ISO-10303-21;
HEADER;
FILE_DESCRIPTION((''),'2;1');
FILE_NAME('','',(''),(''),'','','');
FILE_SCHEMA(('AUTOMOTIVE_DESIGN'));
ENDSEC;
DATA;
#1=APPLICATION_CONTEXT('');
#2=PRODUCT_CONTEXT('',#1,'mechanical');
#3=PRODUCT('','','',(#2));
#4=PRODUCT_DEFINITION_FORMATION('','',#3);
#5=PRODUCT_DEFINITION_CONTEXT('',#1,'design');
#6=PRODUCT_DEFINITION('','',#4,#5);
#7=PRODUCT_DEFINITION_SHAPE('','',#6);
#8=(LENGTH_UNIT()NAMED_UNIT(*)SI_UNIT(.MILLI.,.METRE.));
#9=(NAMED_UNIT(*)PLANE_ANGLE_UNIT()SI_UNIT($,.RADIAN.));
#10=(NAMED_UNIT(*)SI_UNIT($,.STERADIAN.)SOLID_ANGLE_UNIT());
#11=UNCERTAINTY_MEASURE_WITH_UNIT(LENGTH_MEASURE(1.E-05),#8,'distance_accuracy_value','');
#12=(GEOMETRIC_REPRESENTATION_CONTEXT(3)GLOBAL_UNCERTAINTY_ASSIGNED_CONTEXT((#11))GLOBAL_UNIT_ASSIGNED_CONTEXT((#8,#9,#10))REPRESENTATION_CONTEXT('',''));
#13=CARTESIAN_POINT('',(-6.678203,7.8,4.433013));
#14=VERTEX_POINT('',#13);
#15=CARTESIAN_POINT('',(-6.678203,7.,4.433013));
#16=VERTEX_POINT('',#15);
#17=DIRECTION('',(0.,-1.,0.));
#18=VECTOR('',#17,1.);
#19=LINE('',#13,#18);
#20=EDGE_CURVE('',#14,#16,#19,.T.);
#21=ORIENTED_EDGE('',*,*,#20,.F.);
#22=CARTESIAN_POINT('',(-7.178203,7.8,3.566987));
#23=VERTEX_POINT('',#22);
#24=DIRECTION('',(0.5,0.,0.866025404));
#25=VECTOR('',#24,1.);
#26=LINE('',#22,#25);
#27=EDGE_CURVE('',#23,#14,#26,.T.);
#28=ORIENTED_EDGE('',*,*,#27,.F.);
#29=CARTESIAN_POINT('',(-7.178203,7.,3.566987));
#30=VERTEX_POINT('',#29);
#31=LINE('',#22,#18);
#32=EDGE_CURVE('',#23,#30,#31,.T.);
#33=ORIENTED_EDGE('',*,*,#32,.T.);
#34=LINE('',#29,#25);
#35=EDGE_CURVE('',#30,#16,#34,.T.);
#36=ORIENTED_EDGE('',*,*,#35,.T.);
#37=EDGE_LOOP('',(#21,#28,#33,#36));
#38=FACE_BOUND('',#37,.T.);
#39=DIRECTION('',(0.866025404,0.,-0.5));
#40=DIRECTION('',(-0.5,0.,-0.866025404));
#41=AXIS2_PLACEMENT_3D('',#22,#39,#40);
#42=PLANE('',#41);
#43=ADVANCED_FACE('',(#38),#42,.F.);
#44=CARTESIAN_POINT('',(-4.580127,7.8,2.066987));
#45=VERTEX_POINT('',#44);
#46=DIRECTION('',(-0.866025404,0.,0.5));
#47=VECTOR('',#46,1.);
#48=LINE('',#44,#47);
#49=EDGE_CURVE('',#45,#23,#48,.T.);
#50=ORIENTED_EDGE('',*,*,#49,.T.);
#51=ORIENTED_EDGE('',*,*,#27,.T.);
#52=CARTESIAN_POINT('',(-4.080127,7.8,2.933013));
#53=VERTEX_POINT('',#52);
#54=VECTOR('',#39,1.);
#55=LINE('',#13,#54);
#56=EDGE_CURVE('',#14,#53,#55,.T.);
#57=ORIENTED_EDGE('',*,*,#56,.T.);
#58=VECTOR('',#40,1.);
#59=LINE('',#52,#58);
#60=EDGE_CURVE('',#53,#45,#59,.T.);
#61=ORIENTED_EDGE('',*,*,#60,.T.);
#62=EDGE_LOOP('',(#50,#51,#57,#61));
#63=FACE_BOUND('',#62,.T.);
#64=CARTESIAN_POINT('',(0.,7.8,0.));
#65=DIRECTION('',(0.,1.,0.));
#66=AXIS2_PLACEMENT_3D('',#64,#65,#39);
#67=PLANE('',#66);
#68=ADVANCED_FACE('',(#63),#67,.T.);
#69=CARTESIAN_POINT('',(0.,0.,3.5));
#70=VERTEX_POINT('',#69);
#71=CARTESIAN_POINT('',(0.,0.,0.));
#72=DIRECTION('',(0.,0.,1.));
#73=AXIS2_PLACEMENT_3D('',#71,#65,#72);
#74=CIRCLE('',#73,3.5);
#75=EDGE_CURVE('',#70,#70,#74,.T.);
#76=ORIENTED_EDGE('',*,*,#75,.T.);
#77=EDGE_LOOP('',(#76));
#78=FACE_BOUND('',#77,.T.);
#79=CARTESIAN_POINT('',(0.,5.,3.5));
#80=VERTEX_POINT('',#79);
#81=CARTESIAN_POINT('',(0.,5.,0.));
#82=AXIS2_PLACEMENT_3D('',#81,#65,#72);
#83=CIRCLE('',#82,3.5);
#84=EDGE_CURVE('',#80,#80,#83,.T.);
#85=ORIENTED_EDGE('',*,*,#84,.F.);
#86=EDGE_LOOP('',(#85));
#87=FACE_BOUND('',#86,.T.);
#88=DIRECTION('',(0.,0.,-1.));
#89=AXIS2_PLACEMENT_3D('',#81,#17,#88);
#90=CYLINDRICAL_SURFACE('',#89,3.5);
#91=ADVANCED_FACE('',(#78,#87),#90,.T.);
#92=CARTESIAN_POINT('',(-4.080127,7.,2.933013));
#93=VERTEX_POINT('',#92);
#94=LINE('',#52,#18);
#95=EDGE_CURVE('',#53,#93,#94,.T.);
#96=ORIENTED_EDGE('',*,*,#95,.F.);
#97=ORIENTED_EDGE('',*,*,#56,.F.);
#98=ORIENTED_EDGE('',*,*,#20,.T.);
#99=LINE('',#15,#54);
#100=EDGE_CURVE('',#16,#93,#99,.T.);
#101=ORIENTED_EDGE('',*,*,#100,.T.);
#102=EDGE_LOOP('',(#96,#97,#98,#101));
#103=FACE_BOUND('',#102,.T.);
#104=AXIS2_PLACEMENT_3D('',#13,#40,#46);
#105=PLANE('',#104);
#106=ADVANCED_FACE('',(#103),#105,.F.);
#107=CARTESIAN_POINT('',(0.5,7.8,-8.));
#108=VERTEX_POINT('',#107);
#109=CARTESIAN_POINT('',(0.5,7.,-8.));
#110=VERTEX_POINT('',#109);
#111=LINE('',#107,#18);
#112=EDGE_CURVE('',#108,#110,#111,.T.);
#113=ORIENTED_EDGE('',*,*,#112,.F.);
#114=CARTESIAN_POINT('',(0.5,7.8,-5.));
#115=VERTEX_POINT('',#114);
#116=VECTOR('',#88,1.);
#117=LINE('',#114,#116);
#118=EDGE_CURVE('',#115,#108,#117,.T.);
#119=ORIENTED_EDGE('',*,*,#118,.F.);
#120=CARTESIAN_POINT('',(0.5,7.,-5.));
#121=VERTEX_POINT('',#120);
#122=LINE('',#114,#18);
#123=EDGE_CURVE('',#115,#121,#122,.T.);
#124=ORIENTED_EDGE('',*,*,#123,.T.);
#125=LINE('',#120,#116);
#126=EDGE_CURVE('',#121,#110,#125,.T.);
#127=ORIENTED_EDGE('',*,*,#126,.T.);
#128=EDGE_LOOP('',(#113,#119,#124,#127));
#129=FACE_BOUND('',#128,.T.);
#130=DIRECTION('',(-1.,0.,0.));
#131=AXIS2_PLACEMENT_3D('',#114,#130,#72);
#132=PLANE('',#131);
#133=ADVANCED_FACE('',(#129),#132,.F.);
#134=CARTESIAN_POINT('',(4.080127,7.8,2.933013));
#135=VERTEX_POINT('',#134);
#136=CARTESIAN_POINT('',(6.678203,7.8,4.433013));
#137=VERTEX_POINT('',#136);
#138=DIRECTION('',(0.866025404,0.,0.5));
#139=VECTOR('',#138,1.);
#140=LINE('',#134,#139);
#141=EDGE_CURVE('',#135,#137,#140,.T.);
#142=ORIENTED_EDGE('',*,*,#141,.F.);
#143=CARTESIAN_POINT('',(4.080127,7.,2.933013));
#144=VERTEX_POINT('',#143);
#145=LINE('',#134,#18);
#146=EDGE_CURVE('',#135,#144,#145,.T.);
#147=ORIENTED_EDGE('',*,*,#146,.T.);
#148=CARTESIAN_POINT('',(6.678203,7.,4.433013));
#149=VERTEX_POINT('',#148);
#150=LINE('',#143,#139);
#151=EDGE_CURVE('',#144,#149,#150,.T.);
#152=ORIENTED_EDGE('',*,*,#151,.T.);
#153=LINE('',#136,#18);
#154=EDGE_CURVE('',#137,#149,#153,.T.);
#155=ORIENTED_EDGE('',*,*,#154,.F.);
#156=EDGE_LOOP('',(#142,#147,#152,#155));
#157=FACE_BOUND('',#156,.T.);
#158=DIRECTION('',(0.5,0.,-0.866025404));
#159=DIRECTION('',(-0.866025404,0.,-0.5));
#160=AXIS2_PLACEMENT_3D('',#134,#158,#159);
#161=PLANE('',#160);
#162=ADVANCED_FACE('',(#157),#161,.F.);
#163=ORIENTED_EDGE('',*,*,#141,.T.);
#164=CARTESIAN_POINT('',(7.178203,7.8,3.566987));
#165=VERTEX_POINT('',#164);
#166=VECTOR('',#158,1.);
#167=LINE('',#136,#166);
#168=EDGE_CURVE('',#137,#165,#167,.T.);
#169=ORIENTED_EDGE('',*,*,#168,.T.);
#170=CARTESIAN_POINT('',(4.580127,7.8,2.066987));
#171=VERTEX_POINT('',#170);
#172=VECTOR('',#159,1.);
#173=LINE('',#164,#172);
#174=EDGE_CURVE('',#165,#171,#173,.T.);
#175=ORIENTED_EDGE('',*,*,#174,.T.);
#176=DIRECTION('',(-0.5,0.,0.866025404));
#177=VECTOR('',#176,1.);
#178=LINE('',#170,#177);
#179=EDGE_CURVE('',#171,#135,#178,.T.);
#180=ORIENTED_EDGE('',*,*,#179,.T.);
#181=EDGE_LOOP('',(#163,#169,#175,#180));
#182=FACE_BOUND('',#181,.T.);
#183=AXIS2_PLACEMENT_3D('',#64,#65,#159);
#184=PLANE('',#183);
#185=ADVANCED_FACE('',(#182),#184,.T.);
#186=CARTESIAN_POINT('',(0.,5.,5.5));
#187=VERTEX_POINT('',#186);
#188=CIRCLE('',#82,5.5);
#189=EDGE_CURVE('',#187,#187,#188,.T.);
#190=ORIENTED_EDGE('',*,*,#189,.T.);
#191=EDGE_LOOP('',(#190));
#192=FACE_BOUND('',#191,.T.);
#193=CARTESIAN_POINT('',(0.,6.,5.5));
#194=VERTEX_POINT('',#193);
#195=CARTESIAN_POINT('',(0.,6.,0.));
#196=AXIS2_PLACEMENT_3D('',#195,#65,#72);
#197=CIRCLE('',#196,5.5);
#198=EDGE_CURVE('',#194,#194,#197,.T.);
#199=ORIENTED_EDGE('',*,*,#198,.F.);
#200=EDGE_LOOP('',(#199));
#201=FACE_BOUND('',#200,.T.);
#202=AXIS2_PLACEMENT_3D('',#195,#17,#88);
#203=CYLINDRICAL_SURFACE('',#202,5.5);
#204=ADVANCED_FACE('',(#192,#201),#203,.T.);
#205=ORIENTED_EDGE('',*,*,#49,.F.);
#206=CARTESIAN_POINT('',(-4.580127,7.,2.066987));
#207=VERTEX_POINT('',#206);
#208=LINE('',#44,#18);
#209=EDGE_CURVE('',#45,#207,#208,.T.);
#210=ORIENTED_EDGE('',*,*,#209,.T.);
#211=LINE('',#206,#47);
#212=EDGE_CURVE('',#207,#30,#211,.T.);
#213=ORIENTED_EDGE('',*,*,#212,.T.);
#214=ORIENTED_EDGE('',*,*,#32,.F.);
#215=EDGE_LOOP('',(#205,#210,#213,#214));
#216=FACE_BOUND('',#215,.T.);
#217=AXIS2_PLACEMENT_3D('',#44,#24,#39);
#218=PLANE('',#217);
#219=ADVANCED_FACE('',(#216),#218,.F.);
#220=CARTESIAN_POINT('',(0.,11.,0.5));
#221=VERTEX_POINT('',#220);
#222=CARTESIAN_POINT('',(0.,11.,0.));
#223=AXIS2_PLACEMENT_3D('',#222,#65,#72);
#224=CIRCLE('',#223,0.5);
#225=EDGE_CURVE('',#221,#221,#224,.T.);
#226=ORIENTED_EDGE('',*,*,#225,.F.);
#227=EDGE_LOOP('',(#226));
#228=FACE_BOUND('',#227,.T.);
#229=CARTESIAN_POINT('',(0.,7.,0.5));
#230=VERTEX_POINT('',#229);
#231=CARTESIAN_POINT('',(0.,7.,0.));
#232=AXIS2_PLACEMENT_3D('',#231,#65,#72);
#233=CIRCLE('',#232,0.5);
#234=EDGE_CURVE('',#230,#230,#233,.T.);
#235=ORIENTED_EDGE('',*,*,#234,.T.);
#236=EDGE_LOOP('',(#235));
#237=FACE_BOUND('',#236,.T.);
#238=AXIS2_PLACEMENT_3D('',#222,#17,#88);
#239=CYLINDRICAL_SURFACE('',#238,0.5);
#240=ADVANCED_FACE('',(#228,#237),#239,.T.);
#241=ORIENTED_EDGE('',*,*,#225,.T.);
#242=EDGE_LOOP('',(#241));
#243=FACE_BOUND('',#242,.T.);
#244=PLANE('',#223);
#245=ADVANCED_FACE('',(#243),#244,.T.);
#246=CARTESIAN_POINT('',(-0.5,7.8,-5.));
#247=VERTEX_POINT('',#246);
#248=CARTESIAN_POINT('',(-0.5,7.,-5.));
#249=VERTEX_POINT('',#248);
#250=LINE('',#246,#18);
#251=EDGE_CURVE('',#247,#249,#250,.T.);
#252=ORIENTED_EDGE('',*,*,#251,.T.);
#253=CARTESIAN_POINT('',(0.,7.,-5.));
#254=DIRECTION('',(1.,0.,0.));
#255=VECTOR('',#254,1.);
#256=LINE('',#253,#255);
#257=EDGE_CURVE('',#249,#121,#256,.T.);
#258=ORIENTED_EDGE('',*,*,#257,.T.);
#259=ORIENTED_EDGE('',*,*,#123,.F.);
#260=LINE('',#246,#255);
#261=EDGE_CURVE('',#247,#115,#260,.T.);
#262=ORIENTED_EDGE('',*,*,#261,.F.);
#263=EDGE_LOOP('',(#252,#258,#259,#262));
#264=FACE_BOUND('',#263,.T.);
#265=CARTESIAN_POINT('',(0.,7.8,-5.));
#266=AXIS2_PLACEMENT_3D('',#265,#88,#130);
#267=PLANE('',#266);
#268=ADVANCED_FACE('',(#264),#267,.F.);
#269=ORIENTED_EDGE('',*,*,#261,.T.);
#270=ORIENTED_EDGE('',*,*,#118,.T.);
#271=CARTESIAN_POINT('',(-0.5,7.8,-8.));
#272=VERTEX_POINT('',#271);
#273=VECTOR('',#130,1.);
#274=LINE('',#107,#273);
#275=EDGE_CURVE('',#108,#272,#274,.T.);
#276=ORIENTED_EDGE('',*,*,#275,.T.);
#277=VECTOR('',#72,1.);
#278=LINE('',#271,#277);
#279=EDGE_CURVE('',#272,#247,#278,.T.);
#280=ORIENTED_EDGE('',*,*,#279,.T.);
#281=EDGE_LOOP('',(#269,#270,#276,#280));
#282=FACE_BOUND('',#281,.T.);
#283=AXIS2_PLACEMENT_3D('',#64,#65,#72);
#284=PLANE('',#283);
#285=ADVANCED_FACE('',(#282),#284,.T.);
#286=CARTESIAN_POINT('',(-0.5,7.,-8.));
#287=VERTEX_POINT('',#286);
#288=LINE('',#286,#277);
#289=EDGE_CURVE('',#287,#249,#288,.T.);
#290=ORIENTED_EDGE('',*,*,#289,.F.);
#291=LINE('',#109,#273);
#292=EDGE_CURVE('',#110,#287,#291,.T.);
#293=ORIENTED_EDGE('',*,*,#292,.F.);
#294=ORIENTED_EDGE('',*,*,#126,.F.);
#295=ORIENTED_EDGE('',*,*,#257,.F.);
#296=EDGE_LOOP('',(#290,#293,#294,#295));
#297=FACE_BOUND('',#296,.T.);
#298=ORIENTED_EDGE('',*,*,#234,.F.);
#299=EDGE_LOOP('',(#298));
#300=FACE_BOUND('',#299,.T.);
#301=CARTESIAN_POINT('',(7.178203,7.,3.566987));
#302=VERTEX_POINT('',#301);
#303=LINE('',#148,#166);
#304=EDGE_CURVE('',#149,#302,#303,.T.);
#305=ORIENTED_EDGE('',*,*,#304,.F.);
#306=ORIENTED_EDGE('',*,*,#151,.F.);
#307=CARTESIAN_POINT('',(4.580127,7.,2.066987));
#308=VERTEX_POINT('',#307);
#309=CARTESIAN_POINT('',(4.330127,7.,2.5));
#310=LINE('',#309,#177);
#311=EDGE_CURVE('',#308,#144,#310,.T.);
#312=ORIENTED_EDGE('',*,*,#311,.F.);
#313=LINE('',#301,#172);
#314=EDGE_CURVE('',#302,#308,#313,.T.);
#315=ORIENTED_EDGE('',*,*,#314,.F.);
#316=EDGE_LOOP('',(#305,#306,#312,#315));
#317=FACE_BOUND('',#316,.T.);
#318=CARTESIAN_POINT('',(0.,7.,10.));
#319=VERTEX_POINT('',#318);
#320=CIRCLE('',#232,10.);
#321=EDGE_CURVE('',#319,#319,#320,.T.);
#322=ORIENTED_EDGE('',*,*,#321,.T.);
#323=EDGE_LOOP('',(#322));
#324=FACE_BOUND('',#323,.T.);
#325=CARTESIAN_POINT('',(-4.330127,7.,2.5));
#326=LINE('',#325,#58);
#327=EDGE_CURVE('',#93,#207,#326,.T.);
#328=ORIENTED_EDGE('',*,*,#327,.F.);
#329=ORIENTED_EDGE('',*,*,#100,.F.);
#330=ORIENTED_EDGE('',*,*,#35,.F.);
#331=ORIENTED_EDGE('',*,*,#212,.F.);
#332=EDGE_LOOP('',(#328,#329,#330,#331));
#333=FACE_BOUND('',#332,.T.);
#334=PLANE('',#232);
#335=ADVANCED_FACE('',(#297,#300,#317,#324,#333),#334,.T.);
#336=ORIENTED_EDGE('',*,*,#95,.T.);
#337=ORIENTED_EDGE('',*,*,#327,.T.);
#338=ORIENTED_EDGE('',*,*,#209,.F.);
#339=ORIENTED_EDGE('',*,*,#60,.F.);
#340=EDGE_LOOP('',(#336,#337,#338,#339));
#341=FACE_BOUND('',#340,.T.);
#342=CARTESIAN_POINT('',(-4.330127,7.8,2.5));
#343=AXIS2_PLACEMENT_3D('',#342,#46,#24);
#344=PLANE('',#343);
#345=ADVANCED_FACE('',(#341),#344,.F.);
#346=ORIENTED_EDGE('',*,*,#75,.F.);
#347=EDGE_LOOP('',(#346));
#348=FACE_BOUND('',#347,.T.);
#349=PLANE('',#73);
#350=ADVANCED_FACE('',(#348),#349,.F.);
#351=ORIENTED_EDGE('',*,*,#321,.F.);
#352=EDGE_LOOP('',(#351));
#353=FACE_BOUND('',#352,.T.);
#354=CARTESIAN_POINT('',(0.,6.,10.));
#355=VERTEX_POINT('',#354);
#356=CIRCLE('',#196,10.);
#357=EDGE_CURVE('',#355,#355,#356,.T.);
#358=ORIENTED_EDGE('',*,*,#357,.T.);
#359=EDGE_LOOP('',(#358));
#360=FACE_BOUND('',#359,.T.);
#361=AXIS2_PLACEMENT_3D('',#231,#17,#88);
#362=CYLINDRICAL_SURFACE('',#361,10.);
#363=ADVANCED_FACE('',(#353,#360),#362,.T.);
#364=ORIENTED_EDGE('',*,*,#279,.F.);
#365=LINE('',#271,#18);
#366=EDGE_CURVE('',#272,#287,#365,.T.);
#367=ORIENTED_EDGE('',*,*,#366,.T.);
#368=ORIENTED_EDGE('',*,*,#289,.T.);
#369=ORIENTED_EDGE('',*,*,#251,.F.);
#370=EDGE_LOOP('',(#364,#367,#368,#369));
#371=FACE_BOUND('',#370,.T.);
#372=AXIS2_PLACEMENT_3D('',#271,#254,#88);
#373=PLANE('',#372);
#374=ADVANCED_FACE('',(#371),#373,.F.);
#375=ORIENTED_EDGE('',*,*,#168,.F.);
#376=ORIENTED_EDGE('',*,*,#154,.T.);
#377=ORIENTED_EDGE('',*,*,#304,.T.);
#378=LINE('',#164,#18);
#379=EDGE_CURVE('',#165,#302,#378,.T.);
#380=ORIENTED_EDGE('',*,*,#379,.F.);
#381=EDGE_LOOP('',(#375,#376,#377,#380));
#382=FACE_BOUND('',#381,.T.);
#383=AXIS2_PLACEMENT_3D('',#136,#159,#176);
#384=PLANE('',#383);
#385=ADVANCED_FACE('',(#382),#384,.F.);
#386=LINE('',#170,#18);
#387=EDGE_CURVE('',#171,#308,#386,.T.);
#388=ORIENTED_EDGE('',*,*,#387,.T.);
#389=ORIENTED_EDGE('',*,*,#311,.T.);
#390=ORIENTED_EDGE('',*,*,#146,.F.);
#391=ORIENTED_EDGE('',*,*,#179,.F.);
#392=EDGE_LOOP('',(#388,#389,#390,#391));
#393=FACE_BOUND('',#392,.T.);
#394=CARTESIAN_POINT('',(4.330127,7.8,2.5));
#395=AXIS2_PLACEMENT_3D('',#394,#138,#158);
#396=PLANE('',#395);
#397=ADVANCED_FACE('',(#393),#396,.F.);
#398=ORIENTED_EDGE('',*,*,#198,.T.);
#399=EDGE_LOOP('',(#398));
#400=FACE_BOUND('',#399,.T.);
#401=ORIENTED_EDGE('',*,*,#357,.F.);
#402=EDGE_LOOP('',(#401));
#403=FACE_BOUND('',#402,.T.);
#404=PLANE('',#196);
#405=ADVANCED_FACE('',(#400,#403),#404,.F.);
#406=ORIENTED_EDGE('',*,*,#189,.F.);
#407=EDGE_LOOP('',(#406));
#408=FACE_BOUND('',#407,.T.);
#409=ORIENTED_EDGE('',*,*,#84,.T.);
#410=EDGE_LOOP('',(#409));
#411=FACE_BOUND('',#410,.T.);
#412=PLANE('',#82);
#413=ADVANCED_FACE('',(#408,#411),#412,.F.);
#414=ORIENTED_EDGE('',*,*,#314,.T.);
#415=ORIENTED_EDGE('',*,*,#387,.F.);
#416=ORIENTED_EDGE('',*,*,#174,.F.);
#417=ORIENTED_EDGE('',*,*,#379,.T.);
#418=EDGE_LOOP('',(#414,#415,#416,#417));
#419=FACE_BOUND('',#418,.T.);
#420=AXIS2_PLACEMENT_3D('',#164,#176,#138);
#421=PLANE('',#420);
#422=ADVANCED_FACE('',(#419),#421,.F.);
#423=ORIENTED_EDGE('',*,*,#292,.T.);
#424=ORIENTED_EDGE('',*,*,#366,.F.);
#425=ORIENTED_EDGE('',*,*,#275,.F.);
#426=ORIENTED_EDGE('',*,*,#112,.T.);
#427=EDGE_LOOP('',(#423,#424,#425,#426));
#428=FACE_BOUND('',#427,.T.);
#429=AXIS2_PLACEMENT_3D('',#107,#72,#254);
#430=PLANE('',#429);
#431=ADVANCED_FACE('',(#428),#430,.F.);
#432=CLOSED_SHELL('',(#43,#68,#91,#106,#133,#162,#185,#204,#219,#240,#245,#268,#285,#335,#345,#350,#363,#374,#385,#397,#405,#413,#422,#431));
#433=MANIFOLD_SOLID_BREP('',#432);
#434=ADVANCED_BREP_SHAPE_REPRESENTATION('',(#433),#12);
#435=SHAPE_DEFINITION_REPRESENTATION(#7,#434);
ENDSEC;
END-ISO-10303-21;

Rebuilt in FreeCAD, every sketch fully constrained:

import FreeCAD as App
import Part
import Sketcher
from FreeCAD import Vector


def add_polygon(sketch, points):
    """Adds a closed chain of lines whose ends are joined by coincident constraints."""
    first, n = sketch.GeometryCount, len(points)
    for a, b in zip(points, points[1:] + points[:1]):
        sketch.addGeometry(Part.LineSegment(App.Vector(*a, 0), App.Vector(*b, 0)), False)
    for i in range(n):
        sketch.addConstraint(Sketcher.Constraint("Coincident", first + i, 2, first + (i + 1) % n, 1))

doc = App.newDocument("Part")
params = doc.addObject("Spreadsheet::Sheet", "Params")
for row, (alias, value) in enumerate([
    ("sketch1_diameter", "7 mm"),
    ("pad1_length", "5 mm"),
    ("sketch2_diameter", "11 mm"),
    ("pad2_length", "1 mm"),
    ("sketch3_diameter", "20 mm"),
    ("pad3_length", "1 mm"),
    ("sketch4_diameter", "1 mm"),
    ("pad4_length", "4 mm"),
    ("sketch5_width", "1 mm"),
    ("sketch5_height", "3 mm"),
    ("pad5_length", "0.8 mm"),
], start=1):
    params.set(f"A{row}", alias)
    params.set(f"B{row}", "=" + value)
    params.setAlias(f"B{row}", alias)

body = doc.addObject("PartDesign::Body", "Body")

# Sketch on XZ plane
sketch1 = doc.addObject("Sketcher::SketchObject", "Sketch")
body.addObject(sketch1)
sketch1.AttachmentSupport = (doc.XZ_Plane, [""])
sketch1.MapMode = "FlatFace"
sketch1.addGeometry(Part.Circle(Vector(0, 0, 0), Vector(0, 0, 1), 3.5), False)
sketch1.addConstraint([
    Sketcher.Constraint("Coincident", 0, 3, -1, 1),
    Sketcher.Constraint("Diameter", 0, 7.0),
])
sketch1.setExpression("Constraints[1]", "Params.sketch1_diameter")
pad1 = doc.addObject("PartDesign::Pad", "Pad")
body.addObject(pad1)
pad1.Profile = sketch1
pad1.setExpression("Length", "Params.pad1_length")
pad1.Reversed = True

# Sketch on XZ plane
sketch2 = doc.addObject("Sketcher::SketchObject", "Sketch001")
body.addObject(sketch2)
sketch2.AttachmentSupport = (doc.XZ_Plane, [""])
sketch2.MapMode = "FlatFace"
sketch2.AttachmentOffset = App.Placement(Vector(0, 0, -5), App.Rotation())
sketch2.addGeometry(Part.Circle(Vector(0, 0, 0), Vector(0, 0, 1), 6), False)
sketch2.addConstraint([
    Sketcher.Constraint("Coincident", 0, 3, -1, 1),
    Sketcher.Constraint("Diameter", 0, 11.0),
])
sketch2.setExpression("Constraints[1]", "Params.sketch2_diameter")
pad2 = doc.addObject("PartDesign::Pad", "Pad001")
body.addObject(pad2)
pad2.Profile = sketch2
pad2.setExpression("Length", "Params.pad2_length")
pad2.Reversed = True

# Sketch on XZ plane
sketch3 = doc.addObject("Sketcher::SketchObject", "Sketch002")
body.addObject(sketch3)
sketch3.AttachmentSupport = (doc.XZ_Plane, [""])
sketch3.MapMode = "FlatFace"
sketch3.AttachmentOffset = App.Placement(Vector(0, 0, -6), App.Rotation())
sketch3.addGeometry(Part.Circle(Vector(0, 0, 0), Vector(0, 0, 1), 10), False)
sketch3.addConstraint([
    Sketcher.Constraint("Coincident", 0, 3, -1, 1),
    Sketcher.Constraint("Diameter", 0, 20.0),
])
sketch3.setExpression("Constraints[1]", "Params.sketch3_diameter")
pad3 = doc.addObject("PartDesign::Pad", "Pad002")
body.addObject(pad3)
pad3.Profile = sketch3
pad3.setExpression("Length", "Params.pad3_length")
pad3.Reversed = True

# Sketch on XZ plane
sketch4 = doc.addObject("Sketcher::SketchObject", "Sketch003")
body.addObject(sketch4)
sketch4.AttachmentSupport = (doc.XZ_Plane, [""])
sketch4.MapMode = "FlatFace"
sketch4.AttachmentOffset = App.Placement(Vector(0, 0, -7), App.Rotation())
sketch4.addGeometry(Part.Circle(Vector(0, 0, 0), Vector(0, 0, 1), 0.5), False)
sketch4.addConstraint([
    Sketcher.Constraint("Coincident", 0, 3, -1, 1),
    Sketcher.Constraint("Diameter", 0, 1.0),
])
sketch4.setExpression("Constraints[1]", "Params.sketch4_diameter")
pad4 = doc.addObject("PartDesign::Pad", "Pad003")
body.addObject(pad4)
pad4.Profile = sketch4
pad4.setExpression("Length", "Params.pad4_length")
pad4.Reversed = True

# Sketch on XZ plane
sketch5 = doc.addObject("Sketcher::SketchObject", "Sketch004")
body.addObject(sketch5)
sketch5.AttachmentSupport = (doc.XZ_Plane, [""])
sketch5.MapMode = "FlatFace"
sketch5.AttachmentOffset = App.Placement(Vector(0, 0, -7), App.Rotation())
add_polygon(sketch5, [(0.5, -5), (0.5, -8), (-0.5, -8), (-0.5, -5)])  # lines 0-3
sketch5.addConstraint([
    Sketcher.Constraint("Vertical", 0),
    Sketcher.Constraint("Horizontal", 1),
    Sketcher.Constraint("Vertical", 2),
    Sketcher.Constraint("Horizontal", 3),
    Sketcher.Constraint("DistanceX", 1, 2, 1, 1, 1.0),
    Sketcher.Constraint("DistanceY", 0, 2, 0, 1, 3.0),
    Sketcher.Constraint("DistanceY", 0, 2, -1, 1, 8.0),
    Sketcher.Constraint("DistanceX", -1, 1, 0, 2, 0.5),
])
sketch5.setExpression("Constraints[8]", "Params.sketch5_width")
sketch5.setExpression("Constraints[9]", "Params.sketch5_height")
pad5 = doc.addObject("PartDesign::Pad", "Pad004")
body.addObject(pad5)
pad5.Profile = sketch5
pad5.setExpression("Length", "Params.pad5_length")
pad5.Reversed = True
doc.recompute()

polarpattern = doc.addObject("PartDesign::PolarPattern", "PolarPattern")
body.addObject(polarpattern)
polarpattern.Originals = [pad5]
polarpattern.Axis = (doc.Y_Axis, [""])
polarpattern.Angle = 360
polarpattern.Occurrences = 3
body.Tip = polarpattern

doc.recompute()
